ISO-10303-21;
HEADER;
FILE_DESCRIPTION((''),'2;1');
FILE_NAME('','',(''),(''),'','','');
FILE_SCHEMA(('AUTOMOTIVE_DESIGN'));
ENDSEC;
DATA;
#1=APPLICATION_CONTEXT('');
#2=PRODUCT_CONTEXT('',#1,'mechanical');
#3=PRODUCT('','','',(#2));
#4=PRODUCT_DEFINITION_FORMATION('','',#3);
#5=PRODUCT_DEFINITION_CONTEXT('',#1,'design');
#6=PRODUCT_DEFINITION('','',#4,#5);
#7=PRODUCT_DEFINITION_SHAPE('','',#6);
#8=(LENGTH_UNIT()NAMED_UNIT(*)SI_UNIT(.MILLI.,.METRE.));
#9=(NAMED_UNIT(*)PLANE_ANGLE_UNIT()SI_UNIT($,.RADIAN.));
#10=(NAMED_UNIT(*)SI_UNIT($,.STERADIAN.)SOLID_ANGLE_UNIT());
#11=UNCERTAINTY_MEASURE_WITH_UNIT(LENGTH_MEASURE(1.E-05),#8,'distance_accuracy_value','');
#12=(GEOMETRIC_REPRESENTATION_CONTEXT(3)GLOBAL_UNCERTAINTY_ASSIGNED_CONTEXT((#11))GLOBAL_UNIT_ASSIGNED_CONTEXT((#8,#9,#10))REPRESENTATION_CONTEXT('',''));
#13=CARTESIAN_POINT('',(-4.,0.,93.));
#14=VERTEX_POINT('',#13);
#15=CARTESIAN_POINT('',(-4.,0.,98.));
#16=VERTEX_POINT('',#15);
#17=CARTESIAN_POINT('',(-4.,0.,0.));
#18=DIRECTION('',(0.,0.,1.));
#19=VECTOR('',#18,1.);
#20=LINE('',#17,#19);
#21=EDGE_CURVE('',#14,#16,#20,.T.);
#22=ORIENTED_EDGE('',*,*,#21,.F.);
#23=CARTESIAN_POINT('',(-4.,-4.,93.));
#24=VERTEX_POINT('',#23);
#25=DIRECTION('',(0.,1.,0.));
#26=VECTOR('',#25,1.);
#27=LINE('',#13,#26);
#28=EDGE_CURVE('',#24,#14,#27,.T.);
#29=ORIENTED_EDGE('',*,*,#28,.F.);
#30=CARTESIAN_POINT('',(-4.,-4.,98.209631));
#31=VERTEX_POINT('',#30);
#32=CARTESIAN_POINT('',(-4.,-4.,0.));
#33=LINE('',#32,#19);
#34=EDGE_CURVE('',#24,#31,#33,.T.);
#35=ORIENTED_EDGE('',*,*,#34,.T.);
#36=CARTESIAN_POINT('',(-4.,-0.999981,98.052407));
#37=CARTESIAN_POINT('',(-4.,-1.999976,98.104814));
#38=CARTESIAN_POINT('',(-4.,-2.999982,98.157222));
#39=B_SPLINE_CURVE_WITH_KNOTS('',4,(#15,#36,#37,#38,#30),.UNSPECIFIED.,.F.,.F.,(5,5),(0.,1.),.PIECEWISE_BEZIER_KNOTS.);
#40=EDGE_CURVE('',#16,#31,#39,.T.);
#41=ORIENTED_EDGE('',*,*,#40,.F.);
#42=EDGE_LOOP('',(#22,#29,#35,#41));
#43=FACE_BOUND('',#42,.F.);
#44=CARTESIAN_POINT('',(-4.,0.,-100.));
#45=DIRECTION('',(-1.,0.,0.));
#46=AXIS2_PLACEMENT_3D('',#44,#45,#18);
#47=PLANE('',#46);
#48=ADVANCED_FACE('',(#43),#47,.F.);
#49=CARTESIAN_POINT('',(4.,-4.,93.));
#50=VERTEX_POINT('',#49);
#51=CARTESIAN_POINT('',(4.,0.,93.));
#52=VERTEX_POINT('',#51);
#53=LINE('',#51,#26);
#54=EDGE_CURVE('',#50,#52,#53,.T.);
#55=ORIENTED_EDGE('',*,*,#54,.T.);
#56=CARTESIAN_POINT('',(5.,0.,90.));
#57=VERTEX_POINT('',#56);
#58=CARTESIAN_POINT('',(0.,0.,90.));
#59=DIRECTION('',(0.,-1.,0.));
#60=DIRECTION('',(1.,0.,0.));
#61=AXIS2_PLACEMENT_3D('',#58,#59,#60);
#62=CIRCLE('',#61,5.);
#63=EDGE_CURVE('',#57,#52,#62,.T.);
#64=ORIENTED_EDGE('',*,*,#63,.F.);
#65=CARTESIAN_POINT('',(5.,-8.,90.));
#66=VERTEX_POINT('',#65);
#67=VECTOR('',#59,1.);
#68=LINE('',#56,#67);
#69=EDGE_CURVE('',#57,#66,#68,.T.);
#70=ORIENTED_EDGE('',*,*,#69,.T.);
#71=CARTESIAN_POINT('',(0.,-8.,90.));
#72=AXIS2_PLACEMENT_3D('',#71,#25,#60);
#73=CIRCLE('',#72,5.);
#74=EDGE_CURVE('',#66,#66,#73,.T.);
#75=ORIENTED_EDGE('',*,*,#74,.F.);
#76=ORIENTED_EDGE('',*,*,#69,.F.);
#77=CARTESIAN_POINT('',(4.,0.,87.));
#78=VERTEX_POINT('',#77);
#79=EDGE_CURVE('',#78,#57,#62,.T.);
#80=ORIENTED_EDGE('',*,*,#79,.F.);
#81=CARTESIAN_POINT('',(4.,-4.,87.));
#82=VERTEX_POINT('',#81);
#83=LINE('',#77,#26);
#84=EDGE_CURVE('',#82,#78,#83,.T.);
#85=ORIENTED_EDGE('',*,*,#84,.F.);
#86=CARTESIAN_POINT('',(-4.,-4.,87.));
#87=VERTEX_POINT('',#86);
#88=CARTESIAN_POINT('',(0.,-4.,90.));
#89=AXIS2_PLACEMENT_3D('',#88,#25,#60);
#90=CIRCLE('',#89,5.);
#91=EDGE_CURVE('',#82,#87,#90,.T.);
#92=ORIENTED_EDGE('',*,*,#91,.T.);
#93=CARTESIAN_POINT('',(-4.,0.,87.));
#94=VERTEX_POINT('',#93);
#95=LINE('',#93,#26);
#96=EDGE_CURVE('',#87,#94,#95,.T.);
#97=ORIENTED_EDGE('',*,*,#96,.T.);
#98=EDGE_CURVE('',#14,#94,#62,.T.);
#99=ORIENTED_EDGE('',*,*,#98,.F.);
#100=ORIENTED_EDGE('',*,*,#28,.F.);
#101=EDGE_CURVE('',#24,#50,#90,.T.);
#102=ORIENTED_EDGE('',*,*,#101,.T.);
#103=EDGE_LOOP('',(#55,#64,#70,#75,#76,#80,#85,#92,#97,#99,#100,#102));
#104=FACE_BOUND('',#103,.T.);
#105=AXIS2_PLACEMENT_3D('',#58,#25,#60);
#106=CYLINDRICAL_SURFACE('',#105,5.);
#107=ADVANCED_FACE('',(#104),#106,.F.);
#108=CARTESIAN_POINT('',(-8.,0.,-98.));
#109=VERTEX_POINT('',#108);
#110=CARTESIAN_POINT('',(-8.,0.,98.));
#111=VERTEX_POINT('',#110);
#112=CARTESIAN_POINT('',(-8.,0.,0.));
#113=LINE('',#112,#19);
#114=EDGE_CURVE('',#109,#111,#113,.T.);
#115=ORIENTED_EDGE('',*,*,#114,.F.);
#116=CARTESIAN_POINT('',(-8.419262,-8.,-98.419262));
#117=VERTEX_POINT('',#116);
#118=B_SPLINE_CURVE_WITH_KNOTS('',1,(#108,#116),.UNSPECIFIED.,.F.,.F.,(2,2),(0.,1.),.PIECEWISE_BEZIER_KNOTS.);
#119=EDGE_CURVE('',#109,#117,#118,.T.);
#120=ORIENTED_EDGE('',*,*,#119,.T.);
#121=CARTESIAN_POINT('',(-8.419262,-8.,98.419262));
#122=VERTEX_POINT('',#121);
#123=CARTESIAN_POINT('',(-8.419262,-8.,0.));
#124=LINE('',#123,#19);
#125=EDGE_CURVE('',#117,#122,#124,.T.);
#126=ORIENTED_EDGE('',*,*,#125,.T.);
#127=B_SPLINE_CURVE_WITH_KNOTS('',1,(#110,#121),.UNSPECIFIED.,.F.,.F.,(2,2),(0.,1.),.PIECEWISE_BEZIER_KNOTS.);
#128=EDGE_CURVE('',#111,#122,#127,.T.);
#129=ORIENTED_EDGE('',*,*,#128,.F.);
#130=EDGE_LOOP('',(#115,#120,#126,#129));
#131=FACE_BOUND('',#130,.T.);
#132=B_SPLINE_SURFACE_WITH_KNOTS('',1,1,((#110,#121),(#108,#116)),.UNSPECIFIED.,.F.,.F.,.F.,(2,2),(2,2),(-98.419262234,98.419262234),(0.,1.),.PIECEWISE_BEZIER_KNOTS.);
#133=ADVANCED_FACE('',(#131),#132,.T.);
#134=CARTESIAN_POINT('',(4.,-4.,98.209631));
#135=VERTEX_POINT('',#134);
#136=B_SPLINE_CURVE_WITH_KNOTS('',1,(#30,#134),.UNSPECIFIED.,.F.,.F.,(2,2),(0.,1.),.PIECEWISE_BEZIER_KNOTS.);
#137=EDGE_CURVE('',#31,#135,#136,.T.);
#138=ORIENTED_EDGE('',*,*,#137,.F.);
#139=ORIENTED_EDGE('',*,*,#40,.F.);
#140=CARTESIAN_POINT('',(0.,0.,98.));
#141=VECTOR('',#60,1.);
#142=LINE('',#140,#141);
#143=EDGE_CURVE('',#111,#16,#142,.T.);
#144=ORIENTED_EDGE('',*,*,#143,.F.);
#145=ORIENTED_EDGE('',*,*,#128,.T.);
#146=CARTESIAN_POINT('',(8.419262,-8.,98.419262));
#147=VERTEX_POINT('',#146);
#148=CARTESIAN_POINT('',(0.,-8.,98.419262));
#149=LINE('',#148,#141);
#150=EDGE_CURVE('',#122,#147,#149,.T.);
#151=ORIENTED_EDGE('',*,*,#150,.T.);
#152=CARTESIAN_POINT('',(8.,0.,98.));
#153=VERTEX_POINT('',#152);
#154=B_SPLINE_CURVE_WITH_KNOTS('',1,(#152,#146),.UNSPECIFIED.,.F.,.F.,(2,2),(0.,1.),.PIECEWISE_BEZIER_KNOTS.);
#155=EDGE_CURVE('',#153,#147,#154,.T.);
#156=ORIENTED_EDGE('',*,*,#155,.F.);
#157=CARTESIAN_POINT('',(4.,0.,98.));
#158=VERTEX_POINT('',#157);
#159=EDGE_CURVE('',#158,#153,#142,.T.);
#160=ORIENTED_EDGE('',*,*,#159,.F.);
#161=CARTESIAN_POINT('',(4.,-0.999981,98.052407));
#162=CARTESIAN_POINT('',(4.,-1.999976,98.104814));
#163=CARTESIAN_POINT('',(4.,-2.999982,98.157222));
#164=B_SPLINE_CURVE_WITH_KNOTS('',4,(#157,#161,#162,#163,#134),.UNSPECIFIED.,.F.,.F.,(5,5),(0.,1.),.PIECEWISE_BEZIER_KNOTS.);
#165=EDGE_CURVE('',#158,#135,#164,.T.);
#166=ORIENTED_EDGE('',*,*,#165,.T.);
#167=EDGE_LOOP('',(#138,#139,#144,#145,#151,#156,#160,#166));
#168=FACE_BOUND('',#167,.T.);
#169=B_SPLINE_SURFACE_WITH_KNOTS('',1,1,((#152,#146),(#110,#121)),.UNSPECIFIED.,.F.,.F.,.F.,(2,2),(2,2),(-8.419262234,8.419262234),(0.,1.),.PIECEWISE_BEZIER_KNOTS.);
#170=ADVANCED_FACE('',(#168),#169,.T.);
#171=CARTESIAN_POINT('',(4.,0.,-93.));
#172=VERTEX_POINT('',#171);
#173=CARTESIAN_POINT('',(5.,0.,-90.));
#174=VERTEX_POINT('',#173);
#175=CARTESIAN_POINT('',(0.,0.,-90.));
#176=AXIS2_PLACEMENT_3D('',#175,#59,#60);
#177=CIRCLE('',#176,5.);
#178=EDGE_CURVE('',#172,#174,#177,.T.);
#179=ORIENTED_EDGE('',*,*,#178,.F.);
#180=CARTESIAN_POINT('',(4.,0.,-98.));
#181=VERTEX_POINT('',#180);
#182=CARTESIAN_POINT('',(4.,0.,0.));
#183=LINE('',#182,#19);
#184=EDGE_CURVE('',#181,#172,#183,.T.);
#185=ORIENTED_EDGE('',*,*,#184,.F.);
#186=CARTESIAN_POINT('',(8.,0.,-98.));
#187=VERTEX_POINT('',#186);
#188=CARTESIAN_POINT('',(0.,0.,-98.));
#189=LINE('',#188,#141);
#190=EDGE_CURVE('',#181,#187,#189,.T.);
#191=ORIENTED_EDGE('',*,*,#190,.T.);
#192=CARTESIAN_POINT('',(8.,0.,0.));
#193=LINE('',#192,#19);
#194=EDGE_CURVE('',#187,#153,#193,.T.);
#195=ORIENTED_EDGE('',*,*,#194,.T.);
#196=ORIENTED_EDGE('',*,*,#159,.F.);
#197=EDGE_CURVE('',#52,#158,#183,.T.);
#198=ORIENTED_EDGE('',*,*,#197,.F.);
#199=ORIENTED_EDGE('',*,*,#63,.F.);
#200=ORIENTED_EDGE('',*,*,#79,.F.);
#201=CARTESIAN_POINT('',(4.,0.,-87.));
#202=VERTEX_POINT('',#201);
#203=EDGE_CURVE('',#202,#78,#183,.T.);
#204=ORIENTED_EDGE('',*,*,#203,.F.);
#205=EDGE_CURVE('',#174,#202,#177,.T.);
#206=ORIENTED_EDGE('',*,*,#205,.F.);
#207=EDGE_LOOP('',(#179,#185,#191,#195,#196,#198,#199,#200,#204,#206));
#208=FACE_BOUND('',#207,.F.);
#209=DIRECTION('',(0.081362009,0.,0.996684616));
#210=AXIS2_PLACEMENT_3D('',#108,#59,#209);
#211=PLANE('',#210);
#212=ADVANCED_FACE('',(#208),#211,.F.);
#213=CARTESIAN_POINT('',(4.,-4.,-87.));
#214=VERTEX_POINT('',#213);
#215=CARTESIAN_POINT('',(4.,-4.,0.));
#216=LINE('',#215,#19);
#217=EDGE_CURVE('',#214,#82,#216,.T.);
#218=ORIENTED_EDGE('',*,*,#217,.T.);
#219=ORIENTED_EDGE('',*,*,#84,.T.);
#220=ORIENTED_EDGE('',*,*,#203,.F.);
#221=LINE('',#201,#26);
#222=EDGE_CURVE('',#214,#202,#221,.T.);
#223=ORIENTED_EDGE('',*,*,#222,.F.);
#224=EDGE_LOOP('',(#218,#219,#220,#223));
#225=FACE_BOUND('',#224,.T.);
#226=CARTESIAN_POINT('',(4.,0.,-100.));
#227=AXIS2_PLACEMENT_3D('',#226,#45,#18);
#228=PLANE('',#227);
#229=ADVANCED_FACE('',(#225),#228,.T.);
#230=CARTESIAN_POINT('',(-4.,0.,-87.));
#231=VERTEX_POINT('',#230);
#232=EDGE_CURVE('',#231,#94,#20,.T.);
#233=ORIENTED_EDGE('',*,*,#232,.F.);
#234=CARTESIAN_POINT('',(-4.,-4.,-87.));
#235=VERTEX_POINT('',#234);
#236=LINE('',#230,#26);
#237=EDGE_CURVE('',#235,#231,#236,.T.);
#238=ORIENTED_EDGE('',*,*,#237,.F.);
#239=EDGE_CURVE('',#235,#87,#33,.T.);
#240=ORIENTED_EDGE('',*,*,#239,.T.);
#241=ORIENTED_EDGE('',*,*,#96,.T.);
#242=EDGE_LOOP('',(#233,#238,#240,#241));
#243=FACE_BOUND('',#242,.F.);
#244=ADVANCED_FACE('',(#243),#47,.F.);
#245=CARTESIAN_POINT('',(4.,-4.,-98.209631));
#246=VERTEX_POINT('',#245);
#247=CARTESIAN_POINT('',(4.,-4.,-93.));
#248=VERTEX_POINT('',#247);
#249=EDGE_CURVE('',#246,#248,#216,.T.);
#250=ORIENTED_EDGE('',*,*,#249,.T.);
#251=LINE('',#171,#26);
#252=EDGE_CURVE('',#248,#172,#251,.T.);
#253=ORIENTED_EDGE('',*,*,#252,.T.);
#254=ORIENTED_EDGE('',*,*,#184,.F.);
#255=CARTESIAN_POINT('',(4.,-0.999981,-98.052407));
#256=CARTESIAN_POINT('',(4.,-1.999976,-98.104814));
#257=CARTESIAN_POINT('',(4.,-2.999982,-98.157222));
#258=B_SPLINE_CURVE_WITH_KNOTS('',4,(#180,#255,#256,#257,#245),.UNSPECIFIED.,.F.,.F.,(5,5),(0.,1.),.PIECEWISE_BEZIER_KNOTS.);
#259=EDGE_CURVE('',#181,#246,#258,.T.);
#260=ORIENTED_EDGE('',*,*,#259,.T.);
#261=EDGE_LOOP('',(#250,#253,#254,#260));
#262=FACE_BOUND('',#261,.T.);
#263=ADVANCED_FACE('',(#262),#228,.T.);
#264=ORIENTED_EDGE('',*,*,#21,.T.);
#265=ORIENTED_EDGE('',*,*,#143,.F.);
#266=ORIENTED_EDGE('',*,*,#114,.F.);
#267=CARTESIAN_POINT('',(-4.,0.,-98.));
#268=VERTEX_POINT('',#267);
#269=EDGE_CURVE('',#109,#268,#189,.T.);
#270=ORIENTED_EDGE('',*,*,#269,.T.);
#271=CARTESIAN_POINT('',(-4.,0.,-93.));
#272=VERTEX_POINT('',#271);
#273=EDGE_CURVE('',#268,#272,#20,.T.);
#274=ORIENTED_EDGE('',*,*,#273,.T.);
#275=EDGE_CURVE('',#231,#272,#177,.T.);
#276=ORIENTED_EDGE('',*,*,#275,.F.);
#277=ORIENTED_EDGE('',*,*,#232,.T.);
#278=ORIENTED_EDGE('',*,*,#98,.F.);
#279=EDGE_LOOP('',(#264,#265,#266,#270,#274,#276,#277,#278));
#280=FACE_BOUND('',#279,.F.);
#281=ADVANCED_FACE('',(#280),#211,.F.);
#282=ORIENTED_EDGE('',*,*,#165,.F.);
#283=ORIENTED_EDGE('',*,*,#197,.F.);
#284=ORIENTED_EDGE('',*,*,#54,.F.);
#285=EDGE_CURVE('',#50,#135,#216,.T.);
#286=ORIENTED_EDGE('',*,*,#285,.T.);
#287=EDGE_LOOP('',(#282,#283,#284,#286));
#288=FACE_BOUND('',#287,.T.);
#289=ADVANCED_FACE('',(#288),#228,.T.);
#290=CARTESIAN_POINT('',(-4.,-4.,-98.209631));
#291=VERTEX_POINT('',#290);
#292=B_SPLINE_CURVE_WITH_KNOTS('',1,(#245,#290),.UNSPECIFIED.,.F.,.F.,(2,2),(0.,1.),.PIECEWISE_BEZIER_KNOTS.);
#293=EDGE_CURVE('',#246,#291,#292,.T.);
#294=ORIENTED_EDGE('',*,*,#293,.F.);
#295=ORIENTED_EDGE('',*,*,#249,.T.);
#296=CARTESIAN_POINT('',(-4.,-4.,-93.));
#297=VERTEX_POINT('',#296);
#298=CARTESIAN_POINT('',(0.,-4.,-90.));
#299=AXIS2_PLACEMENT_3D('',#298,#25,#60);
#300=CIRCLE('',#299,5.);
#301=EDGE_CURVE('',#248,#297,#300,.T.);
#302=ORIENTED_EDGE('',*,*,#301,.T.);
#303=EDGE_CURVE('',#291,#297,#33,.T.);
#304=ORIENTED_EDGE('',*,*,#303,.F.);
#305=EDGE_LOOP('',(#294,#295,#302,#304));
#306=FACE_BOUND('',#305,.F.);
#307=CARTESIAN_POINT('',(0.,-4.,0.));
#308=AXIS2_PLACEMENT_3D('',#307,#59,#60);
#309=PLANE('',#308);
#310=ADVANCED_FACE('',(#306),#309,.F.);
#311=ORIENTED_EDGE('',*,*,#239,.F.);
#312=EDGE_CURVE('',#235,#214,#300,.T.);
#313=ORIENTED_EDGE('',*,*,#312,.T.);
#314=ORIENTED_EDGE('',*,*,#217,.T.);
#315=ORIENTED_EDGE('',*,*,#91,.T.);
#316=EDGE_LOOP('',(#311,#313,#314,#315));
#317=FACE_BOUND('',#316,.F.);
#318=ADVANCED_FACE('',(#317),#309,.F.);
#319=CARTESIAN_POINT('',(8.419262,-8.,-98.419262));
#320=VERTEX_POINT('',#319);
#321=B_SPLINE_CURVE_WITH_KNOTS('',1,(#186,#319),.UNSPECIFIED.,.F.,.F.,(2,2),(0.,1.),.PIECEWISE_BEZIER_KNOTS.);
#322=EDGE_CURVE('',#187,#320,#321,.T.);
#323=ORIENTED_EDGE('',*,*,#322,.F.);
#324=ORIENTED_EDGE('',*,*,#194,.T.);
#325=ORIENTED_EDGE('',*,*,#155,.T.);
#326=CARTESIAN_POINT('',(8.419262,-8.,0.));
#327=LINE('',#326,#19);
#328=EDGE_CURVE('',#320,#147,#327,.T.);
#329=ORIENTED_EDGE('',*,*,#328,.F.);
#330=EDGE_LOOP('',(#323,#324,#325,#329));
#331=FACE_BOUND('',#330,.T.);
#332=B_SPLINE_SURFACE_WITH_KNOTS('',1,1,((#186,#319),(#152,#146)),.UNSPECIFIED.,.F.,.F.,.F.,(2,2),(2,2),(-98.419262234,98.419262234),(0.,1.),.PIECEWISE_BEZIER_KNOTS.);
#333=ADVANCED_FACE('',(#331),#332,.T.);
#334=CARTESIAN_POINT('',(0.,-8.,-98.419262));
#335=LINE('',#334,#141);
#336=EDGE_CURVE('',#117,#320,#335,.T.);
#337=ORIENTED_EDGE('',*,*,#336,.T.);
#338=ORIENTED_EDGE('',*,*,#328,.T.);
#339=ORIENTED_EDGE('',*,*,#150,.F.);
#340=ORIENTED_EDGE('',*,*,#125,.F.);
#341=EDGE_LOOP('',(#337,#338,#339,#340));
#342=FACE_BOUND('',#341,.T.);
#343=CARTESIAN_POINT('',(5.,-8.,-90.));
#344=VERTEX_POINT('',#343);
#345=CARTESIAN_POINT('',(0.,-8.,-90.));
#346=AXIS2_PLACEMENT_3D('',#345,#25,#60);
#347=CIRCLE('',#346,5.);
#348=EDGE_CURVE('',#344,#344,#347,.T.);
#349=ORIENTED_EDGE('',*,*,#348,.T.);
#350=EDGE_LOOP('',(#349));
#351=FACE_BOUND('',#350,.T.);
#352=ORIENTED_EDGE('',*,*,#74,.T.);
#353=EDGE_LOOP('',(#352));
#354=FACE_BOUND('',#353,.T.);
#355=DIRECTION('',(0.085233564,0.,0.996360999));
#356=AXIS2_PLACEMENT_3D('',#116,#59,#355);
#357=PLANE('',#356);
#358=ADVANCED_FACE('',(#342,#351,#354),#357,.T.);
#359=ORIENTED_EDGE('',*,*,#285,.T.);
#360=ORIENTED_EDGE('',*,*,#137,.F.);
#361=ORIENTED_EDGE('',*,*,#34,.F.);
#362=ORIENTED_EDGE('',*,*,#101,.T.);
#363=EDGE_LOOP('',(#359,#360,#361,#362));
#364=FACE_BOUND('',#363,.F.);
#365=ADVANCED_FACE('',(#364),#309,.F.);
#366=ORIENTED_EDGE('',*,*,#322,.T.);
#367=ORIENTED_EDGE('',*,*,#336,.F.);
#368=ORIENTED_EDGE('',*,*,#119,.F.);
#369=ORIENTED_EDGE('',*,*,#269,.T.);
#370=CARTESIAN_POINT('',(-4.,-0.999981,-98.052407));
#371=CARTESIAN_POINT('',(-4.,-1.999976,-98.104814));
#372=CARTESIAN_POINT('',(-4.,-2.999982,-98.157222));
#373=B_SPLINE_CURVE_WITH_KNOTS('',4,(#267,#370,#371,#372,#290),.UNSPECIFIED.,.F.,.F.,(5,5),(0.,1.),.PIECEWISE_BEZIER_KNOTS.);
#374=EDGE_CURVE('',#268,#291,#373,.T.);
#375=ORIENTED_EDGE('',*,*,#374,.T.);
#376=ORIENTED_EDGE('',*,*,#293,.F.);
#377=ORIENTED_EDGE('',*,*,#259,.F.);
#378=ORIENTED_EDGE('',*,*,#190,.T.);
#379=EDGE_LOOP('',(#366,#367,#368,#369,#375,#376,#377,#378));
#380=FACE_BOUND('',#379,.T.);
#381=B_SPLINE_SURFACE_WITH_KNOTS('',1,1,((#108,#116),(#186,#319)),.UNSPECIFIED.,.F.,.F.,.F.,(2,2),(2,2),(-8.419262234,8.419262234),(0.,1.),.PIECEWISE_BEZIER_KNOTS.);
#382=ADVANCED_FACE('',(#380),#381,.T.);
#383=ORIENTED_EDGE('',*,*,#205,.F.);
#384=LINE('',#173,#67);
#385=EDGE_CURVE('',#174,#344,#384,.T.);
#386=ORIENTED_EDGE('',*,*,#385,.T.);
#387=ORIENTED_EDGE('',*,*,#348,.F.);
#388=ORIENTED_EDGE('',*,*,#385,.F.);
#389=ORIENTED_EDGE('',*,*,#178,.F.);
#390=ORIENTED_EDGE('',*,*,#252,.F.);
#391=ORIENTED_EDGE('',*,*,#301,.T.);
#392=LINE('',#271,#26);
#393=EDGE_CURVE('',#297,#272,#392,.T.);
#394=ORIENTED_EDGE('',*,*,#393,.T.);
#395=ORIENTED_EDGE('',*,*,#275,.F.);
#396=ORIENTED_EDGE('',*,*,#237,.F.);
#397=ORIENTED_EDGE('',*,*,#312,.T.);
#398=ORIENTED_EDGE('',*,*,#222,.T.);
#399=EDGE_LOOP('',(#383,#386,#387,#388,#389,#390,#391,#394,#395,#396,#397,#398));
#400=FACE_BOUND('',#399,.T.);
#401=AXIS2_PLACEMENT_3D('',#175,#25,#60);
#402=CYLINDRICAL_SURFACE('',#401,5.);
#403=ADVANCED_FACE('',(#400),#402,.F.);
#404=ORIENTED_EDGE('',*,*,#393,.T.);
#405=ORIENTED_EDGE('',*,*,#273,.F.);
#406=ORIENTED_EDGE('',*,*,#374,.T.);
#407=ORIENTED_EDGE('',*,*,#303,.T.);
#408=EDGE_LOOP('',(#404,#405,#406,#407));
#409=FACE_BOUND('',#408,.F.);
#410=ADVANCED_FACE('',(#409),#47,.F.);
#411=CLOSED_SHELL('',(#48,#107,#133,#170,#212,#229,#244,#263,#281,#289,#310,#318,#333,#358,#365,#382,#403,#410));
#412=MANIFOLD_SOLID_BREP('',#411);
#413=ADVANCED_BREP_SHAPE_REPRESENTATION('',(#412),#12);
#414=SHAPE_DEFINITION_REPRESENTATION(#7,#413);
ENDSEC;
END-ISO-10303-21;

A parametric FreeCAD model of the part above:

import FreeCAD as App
import Part
import Sketcher


def add_polygon(sketch, points):
    """Adds a closed chain of lines whose ends are joined by coincident constraints."""
    first, n = sketch.GeometryCount, len(points)
    for a, b in zip(points, points[1:] + points[:1]):
        sketch.addGeometry(Part.LineSegment(App.Vector(*a, 0), App.Vector(*b, 0)), False)
    for i in range(n):
        sketch.addConstraint(Sketcher.Constraint("Coincident", first + i, 2, first + (i + 1) % n, 1))

doc = App.newDocument("Part")
params = doc.addObject("Spreadsheet::Sheet", "Params")
for row, (alias, value) in enumerate([
    ("sketch1_width", "16 mm"),
    ("sketch1_height", "196 mm"),
    ("pad1_length", "8 mm"),
    ("pad1_taper", "3 deg"),
    ("sketch2_width", "8 mm"),
    ("sketch2_height", "200 mm"),
    ("pocket1_length", "4 mm"),
    ("sketch3_diameter", "10 mm"),
    ("pocket2_length", "25.4 mm"),
], start=1):
    params.set(f"A{row}", alias)
    params.set(f"B{row}", "=" + value)
    params.setAlias(f"B{row}", alias)

body = doc.addObject("PartDesign::Body", "Body")

# Sketch on XZ plane
sketch1 = body.newObject("Sketcher::SketchObject", "Sketch")
sketch1.AttachmentSupport = (doc.getObject("XZ_Plane"), [""])
sketch1.MapMode = "FlatFace"
add_polygon(sketch1, [(-8, 98), (-8, -98), (8, -98), (8, 98)])  # lines 0-3
sketch1.addConstraint(Sketcher.Constraint("Vertical", 0))
sketch1.addConstraint(Sketcher.Constraint("Horizontal", 1))
sketch1.addConstraint(Sketcher.Constraint("Vertical", 2))
sketch1.addConstraint(Sketcher.Constraint("Horizontal", 3))
sketch1.addConstraint(Sketcher.Constraint("Symmetric", 0, 2, 2, 2, -1, 1))
sketch1.addConstraint(Sketcher.Constraint("DistanceX", 1, 1, 1, 2, 16.0))
sketch1.addConstraint(Sketcher.Constraint("DistanceY", 0, 2, 0, 1, 196.0))
sketch1.setExpression("Constraints[9]", "Params.sketch1_width")
sketch1.setExpression("Constraints[10]", "Params.sketch1_height")
pad1 = body.newObject("PartDesign::Pad", "Pad")
pad1.Profile = sketch1
pad1.setExpression("Length", "Params.pad1_length")
pad1.setExpression("TaperAngle", "Params.pad1_taper")

# Sketch on XZ plane
sketch2 = body.newObject("Sketcher::SketchObject", "Sketch001")
sketch2.AttachmentSupport = (doc.getObject("XZ_Plane"), [""])
sketch2.MapMode = "FlatFace"
add_polygon(sketch2, [(-4, 100), (-4, -100), (4, -100), (4, 100)])  # lines 0-3
sketch2.addConstraint(Sketcher.Constraint("Vertical", 0))
sketch2.addConstraint(Sketcher.Constraint("Horizontal", 1))
sketch2.addConstraint(Sketcher.Constraint("Vertical", 2))
sketch2.addConstraint(Sketcher.Constraint("Horizontal", 3))
sketch2.addConstraint(Sketcher.Constraint("Symmetric", 0, 2, 2, 2, -1, 1))
sketch2.addConstraint(Sketcher.Constraint("DistanceX", 1, 1, 1, 2, 8.0))
sketch2.addConstraint(Sketcher.Constraint("DistanceY", 0, 2, 0, 1, 200.0))
sketch2.setExpression("Constraints[9]", "Params.sketch2_width")
sketch2.setExpression("Constraints[10]", "Params.sketch2_height")
pocket1 = body.newObject("PartDesign::Pocket", "Pocket")
pocket1.Profile = sketch2
pocket1.setExpression("Length", "Params.pocket1_length")
pocket1.Reversed = True

# Sketch on XZ plane
sketch3 = body.newObject("Sketcher::SketchObject", "Sketch002")
sketch3.AttachmentSupport = (doc.getObject("XZ_Plane"), [""])
sketch3.MapMode = "FlatFace"
sketch3.addGeometry(Part.Circle(App.Vector(0, 90, 0), App.Vector(0, 0, 1), 5), False)
sketch3.addGeometry(Part.Circle(App.Vector(0, -90, 0), App.Vector(0, 0, 1), 5), False)
sketch3.addConstraint(Sketcher.Constraint("Equal", 0, 1))
sketch3.addConstraint(Sketcher.Constraint("Symmetric", 0, 3, 1, 3, -1, 1))
sketch3.addConstraint(Sketcher.Constraint("PointOnObject", 0, 3, -2))
sketch3.addConstraint(Sketcher.Constraint("Diameter", 0, 10.0))
sketch3.addConstraint(Sketcher.Constraint("DistanceY", -1, 1, 0, 3, 90.0))
sketch3.setExpression("Constraints[3]", "Params.sketch3_diameter")
pocket2 = body.newObject("PartDesign::Pocket", "Pocket001")
pocket2.Profile = sketch3
pocket2.setExpression("Length", "Params.pocket2_length")
pocket2.Reversed = True

doc.recompute()
